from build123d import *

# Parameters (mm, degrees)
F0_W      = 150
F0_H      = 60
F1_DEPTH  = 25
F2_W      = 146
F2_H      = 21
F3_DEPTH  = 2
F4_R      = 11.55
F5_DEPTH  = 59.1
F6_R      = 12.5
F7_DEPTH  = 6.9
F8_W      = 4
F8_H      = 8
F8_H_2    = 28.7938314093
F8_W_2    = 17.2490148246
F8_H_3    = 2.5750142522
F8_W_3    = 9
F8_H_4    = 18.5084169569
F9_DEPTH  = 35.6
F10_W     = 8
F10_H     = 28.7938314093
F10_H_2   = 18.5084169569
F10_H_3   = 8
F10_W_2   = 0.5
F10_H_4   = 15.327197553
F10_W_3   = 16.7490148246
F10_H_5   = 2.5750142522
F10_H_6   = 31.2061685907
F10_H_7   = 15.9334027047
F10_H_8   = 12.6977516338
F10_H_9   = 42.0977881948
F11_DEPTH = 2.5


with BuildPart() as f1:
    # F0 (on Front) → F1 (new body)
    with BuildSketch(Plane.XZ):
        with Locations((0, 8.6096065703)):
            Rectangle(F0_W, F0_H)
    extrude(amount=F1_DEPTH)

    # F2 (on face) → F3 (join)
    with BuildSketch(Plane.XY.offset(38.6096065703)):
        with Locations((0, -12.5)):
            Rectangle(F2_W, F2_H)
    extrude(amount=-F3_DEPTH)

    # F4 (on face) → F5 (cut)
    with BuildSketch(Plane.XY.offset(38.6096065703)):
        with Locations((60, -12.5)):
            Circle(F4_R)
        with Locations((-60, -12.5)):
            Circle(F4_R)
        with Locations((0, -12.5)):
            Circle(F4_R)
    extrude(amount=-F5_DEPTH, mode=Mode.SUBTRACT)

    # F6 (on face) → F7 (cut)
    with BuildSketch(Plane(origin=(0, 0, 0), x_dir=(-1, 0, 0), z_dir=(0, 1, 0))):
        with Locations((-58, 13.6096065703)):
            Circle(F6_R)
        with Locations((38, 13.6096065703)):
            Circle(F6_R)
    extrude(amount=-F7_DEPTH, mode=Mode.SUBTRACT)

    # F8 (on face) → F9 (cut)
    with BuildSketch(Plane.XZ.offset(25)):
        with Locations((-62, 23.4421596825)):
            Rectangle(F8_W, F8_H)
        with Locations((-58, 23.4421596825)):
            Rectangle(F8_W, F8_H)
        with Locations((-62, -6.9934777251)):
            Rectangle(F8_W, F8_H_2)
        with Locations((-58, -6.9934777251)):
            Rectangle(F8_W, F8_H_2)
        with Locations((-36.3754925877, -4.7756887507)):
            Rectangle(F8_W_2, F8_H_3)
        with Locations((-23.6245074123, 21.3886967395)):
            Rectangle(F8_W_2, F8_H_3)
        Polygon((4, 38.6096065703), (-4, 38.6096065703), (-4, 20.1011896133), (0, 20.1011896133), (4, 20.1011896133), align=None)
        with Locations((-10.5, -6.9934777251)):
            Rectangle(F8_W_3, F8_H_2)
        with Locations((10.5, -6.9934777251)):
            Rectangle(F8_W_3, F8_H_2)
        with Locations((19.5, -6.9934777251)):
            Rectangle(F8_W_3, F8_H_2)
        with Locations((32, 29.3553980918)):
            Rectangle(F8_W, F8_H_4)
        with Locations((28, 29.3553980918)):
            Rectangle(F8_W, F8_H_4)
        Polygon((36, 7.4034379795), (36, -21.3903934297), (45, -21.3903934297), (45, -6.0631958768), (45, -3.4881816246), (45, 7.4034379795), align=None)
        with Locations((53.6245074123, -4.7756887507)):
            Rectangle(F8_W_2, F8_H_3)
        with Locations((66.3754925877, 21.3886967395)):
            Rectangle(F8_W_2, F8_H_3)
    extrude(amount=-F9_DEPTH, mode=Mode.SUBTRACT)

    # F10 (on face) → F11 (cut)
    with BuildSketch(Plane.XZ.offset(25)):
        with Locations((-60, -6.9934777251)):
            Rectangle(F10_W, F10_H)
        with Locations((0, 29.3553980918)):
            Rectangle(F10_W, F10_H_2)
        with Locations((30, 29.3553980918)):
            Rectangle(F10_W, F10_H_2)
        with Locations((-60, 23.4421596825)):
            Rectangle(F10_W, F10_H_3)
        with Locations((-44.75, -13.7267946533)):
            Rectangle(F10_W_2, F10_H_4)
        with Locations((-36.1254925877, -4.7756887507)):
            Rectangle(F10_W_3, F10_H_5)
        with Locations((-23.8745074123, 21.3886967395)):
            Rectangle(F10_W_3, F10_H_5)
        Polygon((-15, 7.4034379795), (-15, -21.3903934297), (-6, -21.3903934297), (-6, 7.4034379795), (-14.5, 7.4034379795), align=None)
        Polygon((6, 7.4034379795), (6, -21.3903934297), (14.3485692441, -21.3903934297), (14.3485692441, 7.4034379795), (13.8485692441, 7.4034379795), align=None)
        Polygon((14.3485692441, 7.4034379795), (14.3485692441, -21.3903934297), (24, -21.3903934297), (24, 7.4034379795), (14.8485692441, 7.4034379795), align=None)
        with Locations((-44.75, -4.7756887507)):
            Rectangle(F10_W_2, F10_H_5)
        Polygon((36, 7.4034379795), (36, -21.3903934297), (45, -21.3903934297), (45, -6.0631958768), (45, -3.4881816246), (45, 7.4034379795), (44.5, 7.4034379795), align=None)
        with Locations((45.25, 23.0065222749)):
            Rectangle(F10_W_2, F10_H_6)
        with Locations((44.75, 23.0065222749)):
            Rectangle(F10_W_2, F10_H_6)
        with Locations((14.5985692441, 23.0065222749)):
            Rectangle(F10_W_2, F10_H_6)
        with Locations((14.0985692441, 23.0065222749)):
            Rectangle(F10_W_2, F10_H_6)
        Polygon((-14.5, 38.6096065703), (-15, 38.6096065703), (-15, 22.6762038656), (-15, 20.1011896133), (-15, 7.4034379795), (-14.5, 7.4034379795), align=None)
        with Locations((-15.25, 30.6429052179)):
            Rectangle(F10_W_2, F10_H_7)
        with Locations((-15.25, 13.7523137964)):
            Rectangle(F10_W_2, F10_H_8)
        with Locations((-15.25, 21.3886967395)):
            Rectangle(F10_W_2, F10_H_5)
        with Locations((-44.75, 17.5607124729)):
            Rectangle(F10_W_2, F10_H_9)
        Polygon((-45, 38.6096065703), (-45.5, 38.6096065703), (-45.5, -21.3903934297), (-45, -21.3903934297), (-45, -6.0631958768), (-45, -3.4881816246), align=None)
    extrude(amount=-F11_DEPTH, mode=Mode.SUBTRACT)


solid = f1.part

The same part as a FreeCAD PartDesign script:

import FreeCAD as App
import Part
import Sketcher

V = App.Vector

doc = App.newDocument("Part")
body = doc.addObject("PartDesign::Body", "Body")

sketch1 = doc.addObject("Sketcher::SketchObject", "Sketch")
body.addObject(sketch1)
sketch1.AttachmentSupport = (doc.XZ_Plane, [""])
sketch1.MapMode = "FlatFace"
sketch1.addGeometry([
    Part.LineSegment(V(-75, 38.609607, 0), V(-75, -21.390393, 0)),
    Part.LineSegment(V(-75, -21.390393, 0), V(75, -21.390393, 0)),
    Part.LineSegment(V(75, -21.390393, 0), V(75, 38.609607, 0)),
    Part.LineSegment(V(75, 38.609607, 0), V(-75, 38.609607, 0)),
], False)
sketch1.addConstraint([
    Sketcher.Constraint("Coincident", 0, 2, 1, 1),
    Sketcher.Constraint("Coincident", 1, 2, 2, 1),
    Sketcher.Constraint("Coincident", 2, 2, 3, 1),
    Sketcher.Constraint("Coincident", 3, 2, 0, 1),
    Sketcher.Constraint("Vertical", 0),
    Sketcher.Constraint("Horizontal", 1),
    Sketcher.Constraint("Vertical", 2),
    Sketcher.Constraint("Horizontal", 3),
    Sketcher.Constraint("DistanceX", 1, 1, 1, 2, 150.0),
    Sketcher.Constraint("DistanceY", 0, 2, 0, 1, 60.0),
    Sketcher.Constraint("DistanceX", 0, 2, -1, 1, 75.0),
    Sketcher.Constraint("DistanceY", 0, 2, -1, 1, 21.390393),
])
pad1 = doc.addObject("PartDesign::Pad", "Pad")
body.addObject(pad1)
pad1.Profile = sketch1
pad1.Length = 25

sketch2 = doc.addObject("Sketcher::SketchObject", "Sketch001")
body.addObject(sketch2)
sketch2.AttachmentSupport = (doc.XY_Plane, [""])
sketch2.MapMode = "FlatFace"
sketch2.AttachmentOffset = App.Placement(V(0, 0, 38.609607), App.Rotation())
sketch2.addGeometry([
    Part.LineSegment(V(-73, -2, 0), V(-73, -23, 0)),
    Part.LineSegment(V(-73, -23, 0), V(73, -23, 0)),
    Part.LineSegment(V(73, -23, 0), V(73, -2, 0)),
    Part.LineSegment(V(73, -2, 0), V(-73, -2, 0)),
], False)
sketch2.addConstraint([
    Sketcher.Constraint("Coincident", 0, 2, 1, 1),
    Sketcher.Constraint("Coincident", 1, 2, 2, 1),
    Sketcher.Constraint("Coincident", 2, 2, 3, 1),
    Sketcher.Constraint("Coincident", 3, 2, 0, 1),
    Sketcher.Constraint("Vertical", 0),
    Sketcher.Constraint("Horizontal", 1),
    Sketcher.Constraint("Vertical", 2),
    Sketcher.Constraint("Horizontal", 3),
    Sketcher.Constraint("DistanceX", 1, 1, 1, 2, 146.0),
    Sketcher.Constraint("DistanceY", 0, 2, 0, 1, 21.0),
    Sketcher.Constraint("DistanceX", 0, 2, -1, 1, 73.0),
    Sketcher.Constraint("DistanceY", 0, 2, -1, 1, 23.0),
])
pad2 = doc.addObject("PartDesign::Pad", "Pad001")
body.addObject(pad2)
pad2.Profile = sketch2
pad2.Length = 2
pad2.Reversed = True

sketch3 = doc.addObject("Sketcher::SketchObject", "Sketch002")
body.addObject(sketch3)
sketch3.AttachmentSupport = (doc.XY_Plane, [""])
sketch3.MapMode = "FlatFace"
sketch3.AttachmentOffset = App.Placement(V(0, 0, 38.609607), App.Rotation())
sketch3.addGeometry([
    Part.Circle(V(60, -12.5, 0), V(0, 0, 1), 11.55),
    Part.Circle(V(-60, -12.5, 0), V(0, 0, 1), 11.55),
    Part.Circle(V(0, -12.5, 0), V(0, 0, 1), 11.55),
], False)
sketch3.addConstraint([
    Sketcher.Constraint("Equal", 0, 1),
    Sketcher.Constraint("Equal", 1, 2),
    Sketcher.Constraint("Symmetric", 0, 3, 1, 3, -2),
    Sketcher.Constraint("PointOnObject", 2, 3, -2),
    Sketcher.Constraint("Horizontal", 1, 3, 2, 3),
    Sketcher.Constraint("Diameter", 0, 23.1),
    Sketcher.Constraint("DistanceX", -1, 1, 0, 3, 60.0),
    Sketcher.Constraint("DistanceY", 0, 3, -1, 1, 12.5),
])
pocket1 = doc.addObject("PartDesign::Pocket", "Pocket")
body.addObject(pocket1)
pocket1.Profile = sketch3
pocket1.Length = 59.1

sketch4 = doc.addObject("Sketcher::SketchObject", "Sketch003")
body.addObject(sketch4)
sketch4.AttachmentSupport = (doc.XZ_Plane, [""])
sketch4.MapMode = "FlatFace"
sketch4.addGeometry([
    Part.Circle(V(58, 13.609607, 0), V(0, 0, 1), 12.5),
    Part.Circle(V(-38, 13.609607, 0), V(0, 0, 1), 12.5),
], False)
sketch4.addConstraint([
    Sketcher.Constraint("Equal", 0, 1),
    Sketcher.Constraint("Horizontal", 0, 3, 1, 3),
    Sketcher.Constraint("Diameter", 0, 25.0),
    Sketcher.Constraint("DistanceX", -1, 1, 0, 3, 58.0),
    Sketcher.Constraint("DistanceX", 1, 3, -1, 1, 38.0),
    Sketcher.Constraint("DistanceY", -1, 1, 0, 3, 13.609607),
])
pocket2 = doc.addObject("PartDesign::Pocket", "Pocket001")
body.addObject(pocket2)
pocket2.Profile = sketch4
pocket2.Length = 6.9
pocket2.Reversed = True

sketch5 = doc.addObject("Sketcher::SketchObject", "Sketch004")
body.addObject(sketch5)
sketch5.AttachmentSupport = (doc.XZ_Plane, [""])
sketch5.MapMode = "FlatFace"
sketch5.AttachmentOffset = App.Placement(V(0, 0, 25), App.Rotation())
sketch5.addGeometry([
    Part.LineSegment(V(-64, 27.44216, 0), V(-64, 19.44216, 0)),
    Part.LineSegment(V(-64, 19.44216, 0), V(-56, 19.44216, 0)),
    Part.LineSegment(V(-56, 19.44216, 0), V(-56, 27.44216, 0)),
    Part.LineSegment(V(-56, 27.44216, 0), V(-64, 27.44216, 0)),
    Part.LineSegment(V(-64, 7.403438, 0), V(-64, -21.390393, 0)),
    Part.LineSegment(V(-64, -21.390393, 0), V(-56, -21.390393, 0)),
    Part.LineSegment(V(-56, -21.390393, 0), V(-56, 7.403438, 0)),
    Part.LineSegment(V(-56, 7.403438, 0), V(-64, 7.403438, 0)),
    Part.LineSegment(V(-45, -3.488182, 0), V(-45, -6.063196, 0)),
    Part.LineSegment(V(-45, -6.063196, 0), V(-27.750985, -6.063196, 0)),
    Part.LineSegment(V(-27.750985, -6.063196, 0), V(-27.750985, -3.488182, 0)),
    Part.LineSegment(V(-27.750985, -3.488182, 0), V(-45, -3.488182, 0)),
    Part.LineSegment(V(-32.249015, 22.676204, 0), V(-32.249015, 20.10119, 0)),
    Part.LineSegment(V(-32.249015, 20.10119, 0), V(-15, 20.10119, 0)),
    Part.LineSegment(V(-15, 20.10119, 0), V(-15, 22.676204, 0)),
    Part.LineSegment(V(-15, 22.676204, 0), V(-32.249015, 22.676204, 0)),
    Part.LineSegment(V(4, 38.609607, 0), V(-4, 38.609607, 0)),
    Part.LineSegment(V(-4, 38.609607, 0), V(-4, 20.10119, 0)),
    Part.LineSegment(V(-4, 20.10119, 0), V(4, 20.10119, 0)),
    Part.LineSegment(V(4, 20.10119, 0), V(4, 38.609607, 0)),
    Part.LineSegment(V(-15, 7.403438, 0), V(-15, -21.390393, 0)),
    Part.LineSegment(V(-15, -21.390393, 0), V(-6, -21.390393, 0)),
    Part.LineSegment(V(-6, -21.390393, 0), V(-6, 7.403438, 0)),
    Part.LineSegment(V(-6, 7.403438, 0), V(-15, 7.403438, 0)),
    Part.LineSegment(V(6, 7.403438, 0), V(6, -21.390393, 0)),
    Part.LineSegment(V(6, -21.390393, 0), V(24, -21.390393, 0)),
    Part.LineSegment(V(24, -21.390393, 0), V(24, 7.403438, 0)),
    Part.LineSegment(V(24, 7.403438, 0), V(6, 7.403438, 0)),
    Part.LineSegment(V(34, 20.10119, 0), V(34, 38.609607, 0)),
    Part.LineSegment(V(34, 38.609607, 0), V(26, 38.609607, 0)),
    Part.LineSegment(V(26, 38.609607, 0), V(26, 20.10119, 0)),
    Part.LineSegment(V(26, 20.10119, 0), V(34, 20.10119, 0)),
    Part.LineSegment(V(36, 7.403438, 0), V(36, -21.390393, 0)),
    Part.LineSegment(V(36, -21.390393, 0), V(45, -21.390393, 0)),
    Part.LineSegment(V(45, -21.390393, 0), V(45, -6.063196, 0)),
    Part.LineSegment(V(45, -6.063196, 0), V(62.249015, -6.063196, 0)),
    Part.LineSegment(V(62.249015, -6.063196, 0), V(62.249015, -3.488182, 0)),
    Part.LineSegment(V(62.249015, -3.488182, 0), V(45, -3.488182, 0)),
    Part.LineSegment(V(45, -3.488182, 0), V(45, 7.403438, 0)),
    Part.LineSegment(V(45, 7.403438, 0), V(36, 7.403438, 0)),
    Part.LineSegment(V(57.750985, 22.676204, 0), V(57.750985, 20.10119, 0)),
    Part.LineSegment(V(57.750985, 20.10119, 0), V(75, 20.10119, 0)),
    Part.LineSegment(V(75, 20.10119, 0), V(75, 22.676204, 0)),
    Part.LineSegment(V(75, 22.676204, 0), V(57.750985, 22.676204, 0)),
], False)
sketch5.addConstraint([
    Sketcher.Constraint("Coincident", 0, 2, 1, 1),
    Sketcher.Constraint("Coincident", 1, 2, 2, 1),
    Sketcher.Constraint("Coincident", 2, 2, 3, 1),
    Sketcher.Constraint("Coincident", 3, 2, 0, 1),
    Sketcher.Constraint("Coincident", 4, 2, 5, 1),
    Sketcher.Constraint("Coincident", 5, 2, 6, 1),
    Sketcher.Constraint("Coincident", 6, 2, 7, 1),
    Sketcher.Constraint("Coincident", 7, 2, 4, 1),
    Sketcher.Constraint("Coincident", 8, 2, 9, 1),
    Sketcher.Constraint("Coincident", 9, 2, 10, 1),
    Sketcher.Constraint("Coincident", 10, 2, 11, 1),
    Sketcher.Constraint("Coincident", 11, 2, 8, 1),
    Sketcher.Constraint("Coincident", 12, 2, 13, 1),
    Sketcher.Constraint("Coincident", 13, 2, 14, 1),
    Sketcher.Constraint("Coincident", 14, 2, 15, 1),
    Sketcher.Constraint("Coincident", 15, 2, 12, 1),
    Sketcher.Constraint("Coincident", 16, 2, 17, 1),
    Sketcher.Constraint("Coincident", 17, 2, 18, 1),
    Sketcher.Constraint("Coincident", 18, 2, 19, 1),
    Sketcher.Constraint("Coincident", 19, 2, 16, 1),
    Sketcher.Constraint("Coincident", 20, 2, 21, 1),
    Sketcher.Constraint("Coincident", 21, 2, 22, 1),
    Sketcher.Constraint("Coincident", 22, 2, 23, 1),
    Sketcher.Constraint("Coincident", 23, 2, 20, 1),
    Sketcher.Constraint("Coincident", 24, 2, 25, 1),
    Sketcher.Constraint("Coincident", 25, 2, 26, 1),
    Sketcher.Constraint("Coincident", 26, 2, 27, 1),
    Sketcher.Constraint("Coincident", 27, 2, 24, 1),
    Sketcher.Constraint("Coincident", 28, 2, 29, 1),
    Sketcher.Constraint("Coincident", 29, 2, 30, 1),
    Sketcher.Constraint("Coincident", 30, 2, 31, 1),
    Sketcher.Constraint("Coincident", 31, 2, 28, 1),
    Sketcher.Constraint("Coincident", 32, 2, 33, 1),
    Sketcher.Constraint("Coincident", 33, 2, 34, 1),
    Sketcher.Constraint("Coincident", 34, 2, 35, 1),
    Sketcher.Constraint("Coincident", 35, 2, 36, 1),
    Sketcher.Constraint("Coincident", 36, 2, 37, 1),
    Sketcher.Constraint("Coincident", 37, 2, 38, 1),
    Sketcher.Constraint("Coincident", 38, 2, 39, 1),
    Sketcher.Constraint("Coincident", 39, 2, 32, 1),
    Sketcher.Constraint("Coincident", 40, 2, 41, 1),
    Sketcher.Constraint("Coincident", 41, 2, 42, 1),
    Sketcher.Constraint("Coincident", 42, 2, 43, 1),
    Sketcher.Constraint("Coincident", 43, 2, 40, 1),
    Sketcher.Constraint("Vertical", 0),
    Sketcher.Constraint("Horizontal", 1),
    Sketcher.Constraint("Vertical", 2),
    Sketcher.Constraint("Horizontal", 3),
    Sketcher.Constraint("Vertical", 4),
    Sketcher.Constraint("Horizontal", 5),
    Sketcher.Constraint("Vertical", 6),
    Sketcher.Constraint("Horizontal", 7),
    Sketcher.Constraint("Vertical", 8),
    Sketcher.Constraint("Horizontal", 9),
    Sketcher.Constraint("Vertical", 10),
    Sketcher.Constraint("Horizontal", 11),
    Sketcher.Constraint("Vertical", 12),
    Sketcher.Constraint("Horizontal", 13),
    Sketcher.Constraint("Vertical", 14),
    Sketcher.Constraint("Horizontal", 15),
    Sketcher.Constraint("Horizontal", 16),
    Sketcher.Constraint("Vertical", 17),
    Sketcher.Constraint("Horizontal", 18),
    Sketcher.Constraint("Vertical", 19),
    Sketcher.Constraint("Vertical", 20),
    Sketcher.Constraint("Horizontal", 21),
    Sketcher.Constraint("Vertical", 22),
    Sketcher.Constraint("Horizontal", 23),
    Sketcher.Constraint("Vertical", 24),
    Sketcher.Constraint("Horizontal", 25),
    Sketcher.Constraint("Vertical", 26),
    Sketcher.Constraint("Horizontal", 27),
    Sketcher.Constraint("Vertical", 28),
    Sketcher.Constraint("Horizontal", 29),
    Sketcher.Constraint("Vertical", 30),
    Sketcher.Constraint("Horizontal", 31),
    Sketcher.Constraint("Vertical", 32),
    Sketcher.Constraint("Horizontal", 33),
    Sketcher.Constraint("Vertical", 34),
    Sketcher.Constraint("Horizontal", 35),
    Sketcher.Constraint("Vertical", 36),
    Sketcher.Constraint("Horizontal", 37),
    Sketcher.Constraint("Vertical", 38),
    Sketcher.Constraint("Horizontal", 39),
    Sketcher.Constraint("Vertical", 40),
    Sketcher.Constraint("Horizontal", 41),
    Sketcher.Constraint("Vertical", 42),
    Sketcher.Constraint("Horizontal", 43),
    Sketcher.Constraint("Symmetric", 21, 2, 24, 2, -2),
    Sketcher.Constraint("Symmetric", 8, 2, 34, 2, -2),
    Sketcher.Constraint("Symmetric", 11, 2, 37, 2, -2),
    Sketcher.Constraint("Horizontal", 13, 2, 17, 2),
    Sketcher.Constraint("Horizontal", 5, 2, 20, 2),
    Sketcher.Constraint("Horizontal", 7, 2, 22, 2),
    Sketcher.Constraint("Horizontal", 23, 2, 26, 2),
    Sketcher.Constraint("Horizontal", 19, 2, 28, 2),
    Sketcher.Constraint("Horizontal", 18, 2, 30, 2),
    Sketcher.Constraint("Horizontal", 25, 2, 32, 2),
    Sketcher.Constraint("Horizontal", 27, 2, 38, 2),
    Sketcher.Constraint("Horizontal", 31, 2, 40, 2),
    Sketcher.Constraint("Horizontal", 15, 2, 42, 2),
    Sketcher.Constraint("Vertical", 3, 2, 4, 2),
    Sketcher.Constraint("Vertical", 2, 2, 5, 2),
    Sketcher.Constraint("Vertical", 14, 2, 20, 2),
    Sketcher.Constraint("Equal", 11, 13),
    Sketcher.Constraint("Equal", 7, 16),
    Sketcher.Constraint("Equal", 18, 29),
    Sketcher.Constraint("Equal", 23, 33),
    Sketcher.Constraint("Equal", 15, 35),
    Sketcher.Constraint("Equal", 37, 41),
    Sketcher.Constraint("Equal", 31, 0),
    Sketcher.Constraint("Equal", 10, 12),
    Sketcher.Constraint("DistanceX", 1, 1, 1, 2, 8.0),
    Sketcher.Constraint("DistanceX", 21, 1, 21, 2, 9.0),
    Sketcher.Constraint("DistanceX", 25, 1, 25, 2, 18.0),
    Sketcher.Constraint("DistanceX", 0, 2, -1, 1, 64.0),
    Sketcher.Constraint("DistanceX", 8, 2, -1, 1, 45.0),
    Sketcher.Constraint("DistanceX", 13, 2, -1, 1, 15.0),
    Sketcher.Constraint("DistanceX", 16, 2, -1, 1, 4.0),
    Sketcher.Constraint("DistanceX", -1, 1, 28, 2, 34.0),
    Sketcher.Constraint("DistanceX", -1, 1, 41, 2, 75.0),
    Sketcher.Constraint("DistanceY", 4, 2, 4, 1, 28.793831),
    Sketcher.Constraint("DistanceY", 38, 1, 38, 2, 10.89162),
    Sketcher.Constraint("DistanceY", 9, 2, 14, 2, 28.7394),
    Sketcher.Constraint("DistanceX", 9, 1, 9, 2, 17.249015),
    Sketcher.Constraint("DistanceY", 8, 2, 8, 1, 2.575014),
    Sketcher.Constraint("DistanceY", 17, 2, 17, 1, 18.508417),
    Sketcher.Constraint("DistanceY", -1, 1, 0, 2, 19.44216),
    Sketcher.Constraint("DistanceY", 10, 2, -1, 1, 3.488182),
])
pocket3 = doc.addObject("PartDesign::Pocket", "Pocket002")
body.addObject(pocket3)
pocket3.Profile = sketch5
pocket3.Length = 35.6

sketch6 = doc.addObject("Sketcher::SketchObject", "Sketch005")
body.addObject(sketch6)
sketch6.AttachmentSupport = (doc.XZ_Plane, [""])
sketch6.MapMode = "FlatFace"
sketch6.AttachmentOffset = App.Placement(V(0, 0, 25), App.Rotation())
sketch6.addGeometry([
    Part.LineSegment(V(-64, 7.403438, 0), V(-64, -21.390393, 0)),
    Part.LineSegment(V(-64, -21.390393, 0), V(-56, -21.390393, 0)),
    Part.LineSegment(V(-56, -21.390393, 0), V(-56, 7.403438, 0)),
    Part.LineSegment(V(-56, 7.403438, 0), V(-64, 7.403438, 0)),
    Part.LineSegment(V(-4, 38.609607, 0), V(-4, 20.10119, 0)),
    Part.LineSegment(V(-4, 20.10119, 0), V(4, 20.10119, 0)),
    Part.LineSegment(V(4, 20.10119, 0), V(4, 38.609607, 0)),
    Part.LineSegment(V(4, 38.609607, 0), V(-4, 38.609607, 0)),
    Part.LineSegment(V(26, 38.609607, 0), V(26, 20.10119, 0)),
    Part.LineSegment(V(26, 20.10119, 0), V(34, 20.10119, 0)),
    Part.LineSegment(V(34, 20.10119, 0), V(34, 38.609607, 0)),
    Part.LineSegment(V(34, 38.609607, 0), V(26, 38.609607, 0)),
    Part.LineSegment(V(-64, 27.44216, 0), V(-64, 19.44216, 0)),
    Part.LineSegment(V(-64, 19.44216, 0), V(-56, 19.44216, 0)),
    Part.LineSegment(V(-56, 19.44216, 0), V(-56, 27.44216, 0)),
    Part.LineSegment(V(-56, 27.44216, 0), V(-64, 27.44216, 0)),
    Part.LineSegment(V(-45, -21.390393, 0), V(-44.5, -21.390393, 0)),
    Part.LineSegment(V(-44.5, -21.390393, 0), V(-44.5, -6.063196, 0)),
    Part.LineSegment(V(-44.5, -6.063196, 0), V(-27.750985, -6.063196, 0)),
    Part.LineSegment(V(-27.750985, -6.063196, 0), V(-27.750985, -3.488182, 0)),
    Part.LineSegment(V(-27.750985, -3.488182, 0), V(-44.5, -3.488182, 0)),
    Part.LineSegment(V(-44.5, -3.488182, 0), V(-44.5, 38.609607, 0)),
    Part.LineSegment(V(-44.5, 38.609607, 0), V(-45.5, 38.609607, 0)),
    Part.LineSegment(V(-45.5, 38.609607, 0), V(-45.5, -21.390393, 0)),
    Part.LineSegment(V(-45.5, -21.390393, 0), V(-45, -21.390393, 0)),
    Part.LineSegment(V(-32.249015, 22.676204, 0), V(-32.249015, 20.10119, 0)),
    Part.LineSegment(V(-32.249015, 20.10119, 0), V(-15.5, 20.10119, 0)),
    Part.LineSegment(V(-15.5, 20.10119, 0), V(-15.5, 7.403438, 0)),
    Part.LineSegment(V(-15.5, 7.403438, 0), V(-15, 7.403438, 0)),
    Part.LineSegment(V(-15, 7.403438, 0), V(-15, -21.390393, 0)),
    Part.LineSegment(V(-15, -21.390393, 0), V(-6, -21.390393, 0)),
    Part.LineSegment(V(-6, -21.390393, 0), V(-6, 7.403438, 0)),
    Part.LineSegment(V(-6, 7.403438, 0), V(-14.5, 7.403438, 0)),
    Part.LineSegment(V(-14.5, 7.403438, 0), V(-14.5, 38.609607, 0)),
    Part.LineSegment(V(-14.5, 38.609607, 0), V(-15, 38.609607, 0)),
    Part.LineSegment(V(-15, 38.609607, 0), V(-15.5, 38.609607, 0)),
    Part.LineSegment(V(-15.5, 38.609607, 0), V(-15.5, 22.676204, 0)),
    Part.LineSegment(V(-15.5, 22.676204, 0), V(-32.249015, 22.676204, 0)),
    Part.LineSegment(V(6, 7.403438, 0), V(6, -21.390393, 0)),
    Part.LineSegment(V(6, -21.390393, 0), V(24, -21.390393, 0)),
    Part.LineSegment(V(24, -21.390393, 0), V(24, 7.403438, 0)),
    Part.LineSegment(V(24, 7.403438, 0), V(14.848569, 7.403438, 0)),
    Part.LineSegment(V(14.848569, 7.403438, 0), V(14.848569, 38.609607, 0)),
    Part.LineSegment(V(14.848569, 38.609607, 0), V(13.848569, 38.609607, 0)),
    Part.LineSegment(V(13.848569, 38.609607, 0), V(13.848569, 7.403438, 0)),
    Part.LineSegment(V(13.848569, 7.403438, 0), V(6, 7.403438, 0)),
    Part.LineSegment(V(36, 7.403438, 0), V(36, -21.390393, 0)),
    Part.LineSegment(V(36, -21.390393, 0), V(45, -21.390393, 0)),
    Part.LineSegment(V(45, -21.390393, 0), V(45, 7.403438, 0)),
    Part.LineSegment(V(45, 7.403438, 0), V(45.5, 7.403438, 0)),
    Part.LineSegment(V(45.5, 7.403438, 0), V(45.5, 38.609607, 0)),
    Part.LineSegment(V(45.5, 38.609607, 0), V(44.5, 38.609607, 0)),
    Part.LineSegment(V(44.5, 38.609607, 0), V(44.5, 7.403438, 0)),
    Part.LineSegment(V(44.5, 7.403438, 0), V(36, 7.403438, 0)),
], False)
sketch6.addConstraint([
    Sketcher.Constraint("Coincident", 0, 2, 1, 1),
    Sketcher.Constraint("Coincident", 1, 2, 2, 1),
    Sketcher.Constraint("Coincident", 2, 2, 3, 1),
    Sketcher.Constraint("Coincident", 3, 2, 0, 1),
    Sketcher.Constraint("Coincident", 4, 2, 5, 1),
    Sketcher.Constraint("Coincident", 5, 2, 6, 1),
    Sketcher.Constraint("Coincident", 6, 2, 7, 1),
    Sketcher.Constraint("Coincident", 7, 2, 4, 1),
    Sketcher.Constraint("Coincident", 8, 2, 9, 1),
    Sketcher.Constraint("Coincident", 9, 2, 10, 1),
    Sketcher.Constraint("Coincident", 10, 2, 11, 1),
    Sketcher.Constraint("Coincident", 11, 2, 8, 1),
    Sketcher.Constraint("Coincident", 12, 2, 13, 1),
    Sketcher.Constraint("Coincident", 13, 2, 14, 1),
    Sketcher.Constraint("Coincident", 14, 2, 15, 1),
    Sketcher.Constraint("Coincident", 15, 2, 12, 1),
    Sketcher.Constraint("Coincident", 16, 2, 17, 1),
    Sketcher.Constraint("Coincident", 17, 2, 18, 1),
    Sketcher.Constraint("Coincident", 18, 2, 19, 1),
    Sketcher.Constraint("Coincident", 19, 2, 20, 1),
    Sketcher.Constraint("Coincident", 20, 2, 21, 1),
    Sketcher.Constraint("Coincident", 21, 2, 22, 1),
    Sketcher.Constraint("Coincident", 22, 2, 23, 1),
    Sketcher.Constraint("Coincident", 23, 2, 24, 1),
    Sketcher.Constraint("Coincident", 24, 2, 16, 1),
    Sketcher.Constraint("Coincident", 25, 2, 26, 1),
    Sketcher.Constraint("Coincident", 26, 2, 27, 1),
    Sketcher.Constraint("Coincident", 27, 2, 28, 1),
    Sketcher.Constraint("Coincident", 28, 2, 29, 1),
    Sketcher.Constraint("Coincident", 29, 2, 30, 1),
    Sketcher.Constraint("Coincident", 30, 2, 31, 1),
    Sketcher.Constraint("Coincident", 31, 2, 32, 1),
    Sketcher.Constraint("Coincident", 32, 2, 33, 1),
    Sketcher.Constraint("Coincident", 33, 2, 34, 1),
    Sketcher.Constraint("Coincident", 34, 2, 35, 1),
    Sketcher.Constraint("Coincident", 35, 2, 36, 1),
    Sketcher.Constraint("Coincident", 36, 2, 37, 1),
    Sketcher.Constraint("Coincident", 37, 2, 25, 1),
    Sketcher.Constraint("Coincident", 38, 2, 39, 1),
    Sketcher.Constraint("Coincident", 39, 2, 40, 1),
    Sketcher.Constraint("Coincident", 40, 2, 41, 1),
    Sketcher.Constraint("Coincident", 41, 2, 42, 1),
    Sketcher.Constraint("Coincident", 42, 2, 43, 1),
    Sketcher.Constraint("Coincident", 43, 2, 44, 1),
    Sketcher.Constraint("Coincident", 44, 2, 45, 1),
    Sketcher.Constraint("Coincident", 45, 2, 38, 1),
    Sketcher.Constraint("Coincident", 46, 2, 47, 1),
    Sketcher.Constraint("Coincident", 47, 2, 48, 1),
    Sketcher.Constraint("Coincident", 48, 2, 49, 1),
    Sketcher.Constraint("Coincident", 49, 2, 50, 1),
    Sketcher.Constraint("Coincident", 50, 2, 51, 1),
    Sketcher.Constraint("Coincident", 51, 2, 52, 1),
    Sketcher.Constraint("Coincident", 52, 2, 53, 1),
    Sketcher.Constraint("Coincident", 53, 2, 46, 1),
    Sketcher.Constraint("Vertical", 0),
    Sketcher.Constraint("Horizontal", 1),
    Sketcher.Constraint("Vertical", 2),
    Sketcher.Constraint("Horizontal", 3),
    Sketcher.Constraint("Vertical", 4),
    Sketcher.Constraint("Horizontal", 5),
    Sketcher.Constraint("Vertical", 6),
    Sketcher.Constraint("Horizontal", 7),
    Sketcher.Constraint("Vertical", 8),
    Sketcher.Constraint("Horizontal", 9),
    Sketcher.Constraint("Vertical", 10),
    Sketcher.Constraint("Horizontal", 11),
    Sketcher.Constraint("Vertical", 12),
    Sketcher.Constraint("Horizontal", 13),
    Sketcher.Constraint("Vertical", 14),
    Sketcher.Constraint("Horizontal", 15),
    Sketcher.Constraint("Horizontal", 16),
    Sketcher.Constraint("Vertical", 17),
    Sketcher.Constraint("Horizontal", 18),
    Sketcher.Constraint("Vertical", 19),
    Sketcher.Constraint("Horizontal", 20),
    Sketcher.Constraint("Vertical", 21),
    Sketcher.Constraint("Horizontal", 22),
    Sketcher.Constraint("Vertical", 23),
    Sketcher.Constraint("Horizontal", 24),
    Sketcher.Constraint("Vertical", 25),
    Sketcher.Constraint("Horizontal", 26),
    Sketcher.Constraint("Vertical", 27),
    Sketcher.Constraint("Horizontal", 28),
    Sketcher.Constraint("Vertical", 29),
    Sketcher.Constraint("Horizontal", 30),
    Sketcher.Constraint("Vertical", 31),
    Sketcher.Constraint("Horizontal", 32),
    Sketcher.Constraint("Vertical", 33),
    Sketcher.Constraint("Horizontal", 34),
    Sketcher.Constraint("Horizontal", 35),
    Sketcher.Constraint("Vertical", 36),
    Sketcher.Constraint("Horizontal", 37),
    Sketcher.Constraint("Vertical", 38),
    Sketcher.Constraint("Horizontal", 39),
    Sketcher.Constraint("Vertical", 40),
    Sketcher.Constraint("Horizontal", 41),
    Sketcher.Constraint("Vertical", 42),
    Sketcher.Constraint("Horizontal", 43),
    Sketcher.Constraint("Vertical", 44),
    Sketcher.Constraint("Horizontal", 45),
    Sketcher.Constraint("Vertical", 46),
    Sketcher.Constraint("Horizontal", 47),
    Sketcher.Constraint("Vertical", 48),
    Sketcher.Constraint("Horizontal", 49),
    Sketcher.Constraint("Vertical", 50),
    Sketcher.Constraint("Horizontal", 51),
    Sketcher.Constraint("Vertical", 52),
    Sketcher.Constraint("Horizontal", 53),
    Sketcher.Constraint("Symmetric", 30, 2, 38, 2, -2),
    Sketcher.Constraint("Symmetric", 24, 2, 47, 2, -2),
    Sketcher.Constraint("Symmetric", 22, 2, 50, 2, -2),
    Sketcher.Constraint("Horizontal", 5, 2, 8, 2),
    Sketcher.Constraint("Horizontal", 7, 2, 10, 2),
    Sketcher.Constraint("Horizontal", 1, 2, 16, 2),
    Sketcher.Constraint("Horizontal", 11, 2, 21, 2),
    Sketcher.Constraint("Horizontal", 9, 2, 25, 2),
    Sketcher.Constraint("Horizontal", 3, 2, 27, 2),
    Sketcher.Constraint("Horizontal", 24, 2, 29, 2),
    Sketcher.Constraint("Horizontal", 28, 2, 31, 2),
    Sketcher.Constraint("Horizontal", 22, 2, 33, 2),
    Sketcher.Constraint("Horizontal", 32, 2, 40, 2),
    Sketcher.Constraint("Horizontal", 35, 2, 42, 2),
    Sketcher.Constraint("Horizontal", 41, 2, 44, 2),
    Sketcher.Constraint("Horizontal", 45, 2, 48, 2),
    Sketcher.Constraint("Horizontal", 49, 2, 52, 2),
    Sketcher.Constraint("Vertical", 3, 2, 12, 2),
    Sketcher.Constraint("Vertical", 2, 2, 13, 2),
    Sketcher.Constraint("Vertical", 17, 2, 20, 2),
    Sketcher.Constraint("Vertical", 29, 2, 34, 2),
    Sketcher.Constraint("Vertical", 27, 2, 35, 2),
    Sketcher.Constraint("Equal", 3, 5),
    Sketcher.Constraint("Equal", 7, 9),
    Sketcher.Constraint("Equal", 16, 24),
    Sketcher.Constraint("Equal", 20, 26),
    Sketcher.Constraint("Equal", 24, 28),
    Sketcher.Constraint("Equal", 28, 34),
    Sketcher.Constraint("Equal", 22, 43),
    Sketcher.Constraint("Equal", 30, 47),
    Sketcher.Constraint("Equal", 43, 51),
    Sketcher.Constraint("Equal", 15, 12),
    Sketcher.Constraint("Equal", 19, 25),
    Sketcher.Constraint("DistanceX", 1, 1, 1, 2, 8.0),
    Sketcher.Constraint("DistanceX", 22, 2, 22, 1, 1.0),
    Sketcher.Constraint("DistanceX", 30, 1, 30, 2, 9.0),
    Sketcher.Constraint("DistanceX", 39, 1, 39, 2, 18.0),
    Sketcher.Constraint("DistanceY", 23, 2, 23, 1, 60.0),
    Sketcher.Constraint("DistanceX", 0, 2, -1, 1, 64.0),
    Sketcher.Constraint("DistanceX", 4, 2, -1, 1, 4.0),
    Sketcher.Constraint("DistanceX", -1, 1, 8, 2, 26.0),
    Sketcher.Constraint("DistanceX", 24, 2, -1, 1, 45.0),
    Sketcher.Constraint("DistanceX", 28, 2, -1, 1, 15.0),
    Sketcher.Constraint("DistanceX", 41, 2, 41, 1, 9.151431),
    Sketcher.Constraint("DistanceY", 0, 2, 0, 1, 28.793831),
    Sketcher.Constraint("DistanceY", 21, 1, 21, 2, 42.097788),
    Sketcher.Constraint("DistanceY", 27, 2, 27, 1, 12.697752),
    Sketcher.Constraint("DistanceX", 18, 1, 18, 2, 16.749015),
    Sketcher.Constraint("DistanceY", 17, 1, 17, 2, 15.327198),
    Sketcher.Constraint("DistanceY", -1, 1, 4, 2, 20.10119),
    Sketcher.Constraint("DistanceY", -1, 1, 12, 2, 19.44216),
])
pocket4 = doc.addObject("PartDesign::Pocket", "Pocket003")
body.addObject(pocket4)
pocket4.Profile = sketch6
pocket4.Length = 2.5

doc.recompute()
